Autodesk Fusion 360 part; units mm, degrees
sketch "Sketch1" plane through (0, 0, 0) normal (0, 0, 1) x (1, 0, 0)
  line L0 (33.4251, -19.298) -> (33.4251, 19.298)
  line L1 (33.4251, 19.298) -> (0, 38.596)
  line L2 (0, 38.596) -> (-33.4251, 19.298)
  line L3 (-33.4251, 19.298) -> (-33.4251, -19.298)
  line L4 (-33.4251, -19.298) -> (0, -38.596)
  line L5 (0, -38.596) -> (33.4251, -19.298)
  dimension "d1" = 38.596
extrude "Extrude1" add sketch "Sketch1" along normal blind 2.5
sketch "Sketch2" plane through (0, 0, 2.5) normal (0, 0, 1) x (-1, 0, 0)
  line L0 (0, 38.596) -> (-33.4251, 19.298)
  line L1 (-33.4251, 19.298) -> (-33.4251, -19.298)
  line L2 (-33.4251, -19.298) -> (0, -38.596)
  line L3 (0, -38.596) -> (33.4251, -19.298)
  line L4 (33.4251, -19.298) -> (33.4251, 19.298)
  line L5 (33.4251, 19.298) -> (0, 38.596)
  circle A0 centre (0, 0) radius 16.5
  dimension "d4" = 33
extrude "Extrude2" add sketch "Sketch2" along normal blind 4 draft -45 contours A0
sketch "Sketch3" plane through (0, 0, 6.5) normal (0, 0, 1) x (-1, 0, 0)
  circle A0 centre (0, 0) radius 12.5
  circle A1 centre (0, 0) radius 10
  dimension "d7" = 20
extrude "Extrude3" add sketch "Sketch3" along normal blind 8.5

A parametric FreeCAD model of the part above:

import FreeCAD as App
import Part
import Sketcher
Q = App.Units.Quantity


def add_polygon(sketch, points):
    """Adds a closed chain of lines whose ends are joined by coincident constraints."""
    first, n = sketch.GeometryCount, len(points)
    for a, b in zip(points, points[1:] + points[:1]):
        sketch.addGeometry(Part.LineSegment(App.Vector(*a, 0), App.Vector(*b, 0)), False)
    for i in range(n):
        sketch.addConstraint(Sketcher.Constraint("Coincident", first + i, 2, first + (i + 1) % n, 1))

doc = App.newDocument("Part")
body = doc.addObject("PartDesign::Body", "Body")

# Sketch on XY plane
sketch1 = body.newObject("Sketcher::SketchObject", "Sketch")
sketch1.AttachmentSupport = (doc.getObject("XY_Plane"), [""])
sketch1.MapMode = "FlatFace"
add_polygon(sketch1, [(0, -39), (33, -19), (33, 19), (0, 39), (-33, 19), (-33, -19)])  # lines 0-5
sketch1.addConstraint([
    Sketcher.Constraint("Vertical", 1),
    Sketcher.Constraint("Vertical", 4),
    Sketcher.Constraint("Symmetric", 0, 2, 3, 2, -1, 1),
    Sketcher.Constraint("Symmetric", 2, 2, 5, 2, -1, 1),
    Sketcher.Constraint("PointOnObject", 2, 2, -2),
    Sketcher.Constraint("Parallel", 2, 5),
    Sketcher.Constraint("Horizontal", 1, 2, 3, 2),
    Sketcher.Constraint("DistanceY", 1, 1, 1, 2, Q("38.596 mm")),
    Sketcher.Constraint("Angle", 0, Q("30 deg")),
    Sketcher.Constraint("Distance", 0, Q("38.596 mm")),
])
pad1 = body.newObject("PartDesign::Pad", "Pad")
pad1.Profile = sketch1
pad1.Length = 2.5

# Sketch on XY plane
sketch2 = body.newObject("Sketcher::SketchObject", "Sketch001")
sketch2.AttachmentSupport = (doc.getObject("XY_Plane"), [""])
sketch2.MapMode = "FlatFace"
sketch2.AttachmentOffset = App.Placement(App.Vector(0, 0, 2.5), App.Rotation())
sketch2.addGeometry(Part.Circle(App.Vector(0, 0, 0), App.Vector(0, 0, 1), 16), False)
sketch2.addConstraint([
    Sketcher.Constraint("Coincident", 0, 3, -1, 1),
    Sketcher.Constraint("Diameter", 0, Q("33 mm")),
])
pad2 = body.newObject("PartDesign::Pad", "Pad001")
pad2.Profile = sketch2
pad2.Length = 4
pad2.TaperAngle = -45

# Sketch on XY plane
sketch3 = body.newObject("Sketcher::SketchObject", "Sketch002")
sketch3.AttachmentSupport = (doc.getObject("XY_Plane"), [""])
sketch3.MapMode = "FlatFace"
sketch3.AttachmentOffset = App.Placement(App.Vector(0, 0, 6.5), App.Rotation())
sketch3.addGeometry([
    Part.Circle(App.Vector(0, 0, 0), App.Vector(0, 0, 1), 12),
    Part.Circle(App.Vector(0, 0, 0), App.Vector(0, 0, 1), 10),
], False)
sketch3.addConstraint([
    Sketcher.Constraint("Coincident", 0, 3, -1, 1),
    Sketcher.Constraint("Coincident", 1, 3, -1, 1),
    Sketcher.Constraint("Diameter", 1, Q("20 mm")),
    Sketcher.Constraint("Diameter", 0, Q("25 mm")),
])
pad3 = body.newObject("PartDesign::Pad", "Pad002")
pad3.Profile = sketch3
pad3.Length = 8.5

doc.recompute()
